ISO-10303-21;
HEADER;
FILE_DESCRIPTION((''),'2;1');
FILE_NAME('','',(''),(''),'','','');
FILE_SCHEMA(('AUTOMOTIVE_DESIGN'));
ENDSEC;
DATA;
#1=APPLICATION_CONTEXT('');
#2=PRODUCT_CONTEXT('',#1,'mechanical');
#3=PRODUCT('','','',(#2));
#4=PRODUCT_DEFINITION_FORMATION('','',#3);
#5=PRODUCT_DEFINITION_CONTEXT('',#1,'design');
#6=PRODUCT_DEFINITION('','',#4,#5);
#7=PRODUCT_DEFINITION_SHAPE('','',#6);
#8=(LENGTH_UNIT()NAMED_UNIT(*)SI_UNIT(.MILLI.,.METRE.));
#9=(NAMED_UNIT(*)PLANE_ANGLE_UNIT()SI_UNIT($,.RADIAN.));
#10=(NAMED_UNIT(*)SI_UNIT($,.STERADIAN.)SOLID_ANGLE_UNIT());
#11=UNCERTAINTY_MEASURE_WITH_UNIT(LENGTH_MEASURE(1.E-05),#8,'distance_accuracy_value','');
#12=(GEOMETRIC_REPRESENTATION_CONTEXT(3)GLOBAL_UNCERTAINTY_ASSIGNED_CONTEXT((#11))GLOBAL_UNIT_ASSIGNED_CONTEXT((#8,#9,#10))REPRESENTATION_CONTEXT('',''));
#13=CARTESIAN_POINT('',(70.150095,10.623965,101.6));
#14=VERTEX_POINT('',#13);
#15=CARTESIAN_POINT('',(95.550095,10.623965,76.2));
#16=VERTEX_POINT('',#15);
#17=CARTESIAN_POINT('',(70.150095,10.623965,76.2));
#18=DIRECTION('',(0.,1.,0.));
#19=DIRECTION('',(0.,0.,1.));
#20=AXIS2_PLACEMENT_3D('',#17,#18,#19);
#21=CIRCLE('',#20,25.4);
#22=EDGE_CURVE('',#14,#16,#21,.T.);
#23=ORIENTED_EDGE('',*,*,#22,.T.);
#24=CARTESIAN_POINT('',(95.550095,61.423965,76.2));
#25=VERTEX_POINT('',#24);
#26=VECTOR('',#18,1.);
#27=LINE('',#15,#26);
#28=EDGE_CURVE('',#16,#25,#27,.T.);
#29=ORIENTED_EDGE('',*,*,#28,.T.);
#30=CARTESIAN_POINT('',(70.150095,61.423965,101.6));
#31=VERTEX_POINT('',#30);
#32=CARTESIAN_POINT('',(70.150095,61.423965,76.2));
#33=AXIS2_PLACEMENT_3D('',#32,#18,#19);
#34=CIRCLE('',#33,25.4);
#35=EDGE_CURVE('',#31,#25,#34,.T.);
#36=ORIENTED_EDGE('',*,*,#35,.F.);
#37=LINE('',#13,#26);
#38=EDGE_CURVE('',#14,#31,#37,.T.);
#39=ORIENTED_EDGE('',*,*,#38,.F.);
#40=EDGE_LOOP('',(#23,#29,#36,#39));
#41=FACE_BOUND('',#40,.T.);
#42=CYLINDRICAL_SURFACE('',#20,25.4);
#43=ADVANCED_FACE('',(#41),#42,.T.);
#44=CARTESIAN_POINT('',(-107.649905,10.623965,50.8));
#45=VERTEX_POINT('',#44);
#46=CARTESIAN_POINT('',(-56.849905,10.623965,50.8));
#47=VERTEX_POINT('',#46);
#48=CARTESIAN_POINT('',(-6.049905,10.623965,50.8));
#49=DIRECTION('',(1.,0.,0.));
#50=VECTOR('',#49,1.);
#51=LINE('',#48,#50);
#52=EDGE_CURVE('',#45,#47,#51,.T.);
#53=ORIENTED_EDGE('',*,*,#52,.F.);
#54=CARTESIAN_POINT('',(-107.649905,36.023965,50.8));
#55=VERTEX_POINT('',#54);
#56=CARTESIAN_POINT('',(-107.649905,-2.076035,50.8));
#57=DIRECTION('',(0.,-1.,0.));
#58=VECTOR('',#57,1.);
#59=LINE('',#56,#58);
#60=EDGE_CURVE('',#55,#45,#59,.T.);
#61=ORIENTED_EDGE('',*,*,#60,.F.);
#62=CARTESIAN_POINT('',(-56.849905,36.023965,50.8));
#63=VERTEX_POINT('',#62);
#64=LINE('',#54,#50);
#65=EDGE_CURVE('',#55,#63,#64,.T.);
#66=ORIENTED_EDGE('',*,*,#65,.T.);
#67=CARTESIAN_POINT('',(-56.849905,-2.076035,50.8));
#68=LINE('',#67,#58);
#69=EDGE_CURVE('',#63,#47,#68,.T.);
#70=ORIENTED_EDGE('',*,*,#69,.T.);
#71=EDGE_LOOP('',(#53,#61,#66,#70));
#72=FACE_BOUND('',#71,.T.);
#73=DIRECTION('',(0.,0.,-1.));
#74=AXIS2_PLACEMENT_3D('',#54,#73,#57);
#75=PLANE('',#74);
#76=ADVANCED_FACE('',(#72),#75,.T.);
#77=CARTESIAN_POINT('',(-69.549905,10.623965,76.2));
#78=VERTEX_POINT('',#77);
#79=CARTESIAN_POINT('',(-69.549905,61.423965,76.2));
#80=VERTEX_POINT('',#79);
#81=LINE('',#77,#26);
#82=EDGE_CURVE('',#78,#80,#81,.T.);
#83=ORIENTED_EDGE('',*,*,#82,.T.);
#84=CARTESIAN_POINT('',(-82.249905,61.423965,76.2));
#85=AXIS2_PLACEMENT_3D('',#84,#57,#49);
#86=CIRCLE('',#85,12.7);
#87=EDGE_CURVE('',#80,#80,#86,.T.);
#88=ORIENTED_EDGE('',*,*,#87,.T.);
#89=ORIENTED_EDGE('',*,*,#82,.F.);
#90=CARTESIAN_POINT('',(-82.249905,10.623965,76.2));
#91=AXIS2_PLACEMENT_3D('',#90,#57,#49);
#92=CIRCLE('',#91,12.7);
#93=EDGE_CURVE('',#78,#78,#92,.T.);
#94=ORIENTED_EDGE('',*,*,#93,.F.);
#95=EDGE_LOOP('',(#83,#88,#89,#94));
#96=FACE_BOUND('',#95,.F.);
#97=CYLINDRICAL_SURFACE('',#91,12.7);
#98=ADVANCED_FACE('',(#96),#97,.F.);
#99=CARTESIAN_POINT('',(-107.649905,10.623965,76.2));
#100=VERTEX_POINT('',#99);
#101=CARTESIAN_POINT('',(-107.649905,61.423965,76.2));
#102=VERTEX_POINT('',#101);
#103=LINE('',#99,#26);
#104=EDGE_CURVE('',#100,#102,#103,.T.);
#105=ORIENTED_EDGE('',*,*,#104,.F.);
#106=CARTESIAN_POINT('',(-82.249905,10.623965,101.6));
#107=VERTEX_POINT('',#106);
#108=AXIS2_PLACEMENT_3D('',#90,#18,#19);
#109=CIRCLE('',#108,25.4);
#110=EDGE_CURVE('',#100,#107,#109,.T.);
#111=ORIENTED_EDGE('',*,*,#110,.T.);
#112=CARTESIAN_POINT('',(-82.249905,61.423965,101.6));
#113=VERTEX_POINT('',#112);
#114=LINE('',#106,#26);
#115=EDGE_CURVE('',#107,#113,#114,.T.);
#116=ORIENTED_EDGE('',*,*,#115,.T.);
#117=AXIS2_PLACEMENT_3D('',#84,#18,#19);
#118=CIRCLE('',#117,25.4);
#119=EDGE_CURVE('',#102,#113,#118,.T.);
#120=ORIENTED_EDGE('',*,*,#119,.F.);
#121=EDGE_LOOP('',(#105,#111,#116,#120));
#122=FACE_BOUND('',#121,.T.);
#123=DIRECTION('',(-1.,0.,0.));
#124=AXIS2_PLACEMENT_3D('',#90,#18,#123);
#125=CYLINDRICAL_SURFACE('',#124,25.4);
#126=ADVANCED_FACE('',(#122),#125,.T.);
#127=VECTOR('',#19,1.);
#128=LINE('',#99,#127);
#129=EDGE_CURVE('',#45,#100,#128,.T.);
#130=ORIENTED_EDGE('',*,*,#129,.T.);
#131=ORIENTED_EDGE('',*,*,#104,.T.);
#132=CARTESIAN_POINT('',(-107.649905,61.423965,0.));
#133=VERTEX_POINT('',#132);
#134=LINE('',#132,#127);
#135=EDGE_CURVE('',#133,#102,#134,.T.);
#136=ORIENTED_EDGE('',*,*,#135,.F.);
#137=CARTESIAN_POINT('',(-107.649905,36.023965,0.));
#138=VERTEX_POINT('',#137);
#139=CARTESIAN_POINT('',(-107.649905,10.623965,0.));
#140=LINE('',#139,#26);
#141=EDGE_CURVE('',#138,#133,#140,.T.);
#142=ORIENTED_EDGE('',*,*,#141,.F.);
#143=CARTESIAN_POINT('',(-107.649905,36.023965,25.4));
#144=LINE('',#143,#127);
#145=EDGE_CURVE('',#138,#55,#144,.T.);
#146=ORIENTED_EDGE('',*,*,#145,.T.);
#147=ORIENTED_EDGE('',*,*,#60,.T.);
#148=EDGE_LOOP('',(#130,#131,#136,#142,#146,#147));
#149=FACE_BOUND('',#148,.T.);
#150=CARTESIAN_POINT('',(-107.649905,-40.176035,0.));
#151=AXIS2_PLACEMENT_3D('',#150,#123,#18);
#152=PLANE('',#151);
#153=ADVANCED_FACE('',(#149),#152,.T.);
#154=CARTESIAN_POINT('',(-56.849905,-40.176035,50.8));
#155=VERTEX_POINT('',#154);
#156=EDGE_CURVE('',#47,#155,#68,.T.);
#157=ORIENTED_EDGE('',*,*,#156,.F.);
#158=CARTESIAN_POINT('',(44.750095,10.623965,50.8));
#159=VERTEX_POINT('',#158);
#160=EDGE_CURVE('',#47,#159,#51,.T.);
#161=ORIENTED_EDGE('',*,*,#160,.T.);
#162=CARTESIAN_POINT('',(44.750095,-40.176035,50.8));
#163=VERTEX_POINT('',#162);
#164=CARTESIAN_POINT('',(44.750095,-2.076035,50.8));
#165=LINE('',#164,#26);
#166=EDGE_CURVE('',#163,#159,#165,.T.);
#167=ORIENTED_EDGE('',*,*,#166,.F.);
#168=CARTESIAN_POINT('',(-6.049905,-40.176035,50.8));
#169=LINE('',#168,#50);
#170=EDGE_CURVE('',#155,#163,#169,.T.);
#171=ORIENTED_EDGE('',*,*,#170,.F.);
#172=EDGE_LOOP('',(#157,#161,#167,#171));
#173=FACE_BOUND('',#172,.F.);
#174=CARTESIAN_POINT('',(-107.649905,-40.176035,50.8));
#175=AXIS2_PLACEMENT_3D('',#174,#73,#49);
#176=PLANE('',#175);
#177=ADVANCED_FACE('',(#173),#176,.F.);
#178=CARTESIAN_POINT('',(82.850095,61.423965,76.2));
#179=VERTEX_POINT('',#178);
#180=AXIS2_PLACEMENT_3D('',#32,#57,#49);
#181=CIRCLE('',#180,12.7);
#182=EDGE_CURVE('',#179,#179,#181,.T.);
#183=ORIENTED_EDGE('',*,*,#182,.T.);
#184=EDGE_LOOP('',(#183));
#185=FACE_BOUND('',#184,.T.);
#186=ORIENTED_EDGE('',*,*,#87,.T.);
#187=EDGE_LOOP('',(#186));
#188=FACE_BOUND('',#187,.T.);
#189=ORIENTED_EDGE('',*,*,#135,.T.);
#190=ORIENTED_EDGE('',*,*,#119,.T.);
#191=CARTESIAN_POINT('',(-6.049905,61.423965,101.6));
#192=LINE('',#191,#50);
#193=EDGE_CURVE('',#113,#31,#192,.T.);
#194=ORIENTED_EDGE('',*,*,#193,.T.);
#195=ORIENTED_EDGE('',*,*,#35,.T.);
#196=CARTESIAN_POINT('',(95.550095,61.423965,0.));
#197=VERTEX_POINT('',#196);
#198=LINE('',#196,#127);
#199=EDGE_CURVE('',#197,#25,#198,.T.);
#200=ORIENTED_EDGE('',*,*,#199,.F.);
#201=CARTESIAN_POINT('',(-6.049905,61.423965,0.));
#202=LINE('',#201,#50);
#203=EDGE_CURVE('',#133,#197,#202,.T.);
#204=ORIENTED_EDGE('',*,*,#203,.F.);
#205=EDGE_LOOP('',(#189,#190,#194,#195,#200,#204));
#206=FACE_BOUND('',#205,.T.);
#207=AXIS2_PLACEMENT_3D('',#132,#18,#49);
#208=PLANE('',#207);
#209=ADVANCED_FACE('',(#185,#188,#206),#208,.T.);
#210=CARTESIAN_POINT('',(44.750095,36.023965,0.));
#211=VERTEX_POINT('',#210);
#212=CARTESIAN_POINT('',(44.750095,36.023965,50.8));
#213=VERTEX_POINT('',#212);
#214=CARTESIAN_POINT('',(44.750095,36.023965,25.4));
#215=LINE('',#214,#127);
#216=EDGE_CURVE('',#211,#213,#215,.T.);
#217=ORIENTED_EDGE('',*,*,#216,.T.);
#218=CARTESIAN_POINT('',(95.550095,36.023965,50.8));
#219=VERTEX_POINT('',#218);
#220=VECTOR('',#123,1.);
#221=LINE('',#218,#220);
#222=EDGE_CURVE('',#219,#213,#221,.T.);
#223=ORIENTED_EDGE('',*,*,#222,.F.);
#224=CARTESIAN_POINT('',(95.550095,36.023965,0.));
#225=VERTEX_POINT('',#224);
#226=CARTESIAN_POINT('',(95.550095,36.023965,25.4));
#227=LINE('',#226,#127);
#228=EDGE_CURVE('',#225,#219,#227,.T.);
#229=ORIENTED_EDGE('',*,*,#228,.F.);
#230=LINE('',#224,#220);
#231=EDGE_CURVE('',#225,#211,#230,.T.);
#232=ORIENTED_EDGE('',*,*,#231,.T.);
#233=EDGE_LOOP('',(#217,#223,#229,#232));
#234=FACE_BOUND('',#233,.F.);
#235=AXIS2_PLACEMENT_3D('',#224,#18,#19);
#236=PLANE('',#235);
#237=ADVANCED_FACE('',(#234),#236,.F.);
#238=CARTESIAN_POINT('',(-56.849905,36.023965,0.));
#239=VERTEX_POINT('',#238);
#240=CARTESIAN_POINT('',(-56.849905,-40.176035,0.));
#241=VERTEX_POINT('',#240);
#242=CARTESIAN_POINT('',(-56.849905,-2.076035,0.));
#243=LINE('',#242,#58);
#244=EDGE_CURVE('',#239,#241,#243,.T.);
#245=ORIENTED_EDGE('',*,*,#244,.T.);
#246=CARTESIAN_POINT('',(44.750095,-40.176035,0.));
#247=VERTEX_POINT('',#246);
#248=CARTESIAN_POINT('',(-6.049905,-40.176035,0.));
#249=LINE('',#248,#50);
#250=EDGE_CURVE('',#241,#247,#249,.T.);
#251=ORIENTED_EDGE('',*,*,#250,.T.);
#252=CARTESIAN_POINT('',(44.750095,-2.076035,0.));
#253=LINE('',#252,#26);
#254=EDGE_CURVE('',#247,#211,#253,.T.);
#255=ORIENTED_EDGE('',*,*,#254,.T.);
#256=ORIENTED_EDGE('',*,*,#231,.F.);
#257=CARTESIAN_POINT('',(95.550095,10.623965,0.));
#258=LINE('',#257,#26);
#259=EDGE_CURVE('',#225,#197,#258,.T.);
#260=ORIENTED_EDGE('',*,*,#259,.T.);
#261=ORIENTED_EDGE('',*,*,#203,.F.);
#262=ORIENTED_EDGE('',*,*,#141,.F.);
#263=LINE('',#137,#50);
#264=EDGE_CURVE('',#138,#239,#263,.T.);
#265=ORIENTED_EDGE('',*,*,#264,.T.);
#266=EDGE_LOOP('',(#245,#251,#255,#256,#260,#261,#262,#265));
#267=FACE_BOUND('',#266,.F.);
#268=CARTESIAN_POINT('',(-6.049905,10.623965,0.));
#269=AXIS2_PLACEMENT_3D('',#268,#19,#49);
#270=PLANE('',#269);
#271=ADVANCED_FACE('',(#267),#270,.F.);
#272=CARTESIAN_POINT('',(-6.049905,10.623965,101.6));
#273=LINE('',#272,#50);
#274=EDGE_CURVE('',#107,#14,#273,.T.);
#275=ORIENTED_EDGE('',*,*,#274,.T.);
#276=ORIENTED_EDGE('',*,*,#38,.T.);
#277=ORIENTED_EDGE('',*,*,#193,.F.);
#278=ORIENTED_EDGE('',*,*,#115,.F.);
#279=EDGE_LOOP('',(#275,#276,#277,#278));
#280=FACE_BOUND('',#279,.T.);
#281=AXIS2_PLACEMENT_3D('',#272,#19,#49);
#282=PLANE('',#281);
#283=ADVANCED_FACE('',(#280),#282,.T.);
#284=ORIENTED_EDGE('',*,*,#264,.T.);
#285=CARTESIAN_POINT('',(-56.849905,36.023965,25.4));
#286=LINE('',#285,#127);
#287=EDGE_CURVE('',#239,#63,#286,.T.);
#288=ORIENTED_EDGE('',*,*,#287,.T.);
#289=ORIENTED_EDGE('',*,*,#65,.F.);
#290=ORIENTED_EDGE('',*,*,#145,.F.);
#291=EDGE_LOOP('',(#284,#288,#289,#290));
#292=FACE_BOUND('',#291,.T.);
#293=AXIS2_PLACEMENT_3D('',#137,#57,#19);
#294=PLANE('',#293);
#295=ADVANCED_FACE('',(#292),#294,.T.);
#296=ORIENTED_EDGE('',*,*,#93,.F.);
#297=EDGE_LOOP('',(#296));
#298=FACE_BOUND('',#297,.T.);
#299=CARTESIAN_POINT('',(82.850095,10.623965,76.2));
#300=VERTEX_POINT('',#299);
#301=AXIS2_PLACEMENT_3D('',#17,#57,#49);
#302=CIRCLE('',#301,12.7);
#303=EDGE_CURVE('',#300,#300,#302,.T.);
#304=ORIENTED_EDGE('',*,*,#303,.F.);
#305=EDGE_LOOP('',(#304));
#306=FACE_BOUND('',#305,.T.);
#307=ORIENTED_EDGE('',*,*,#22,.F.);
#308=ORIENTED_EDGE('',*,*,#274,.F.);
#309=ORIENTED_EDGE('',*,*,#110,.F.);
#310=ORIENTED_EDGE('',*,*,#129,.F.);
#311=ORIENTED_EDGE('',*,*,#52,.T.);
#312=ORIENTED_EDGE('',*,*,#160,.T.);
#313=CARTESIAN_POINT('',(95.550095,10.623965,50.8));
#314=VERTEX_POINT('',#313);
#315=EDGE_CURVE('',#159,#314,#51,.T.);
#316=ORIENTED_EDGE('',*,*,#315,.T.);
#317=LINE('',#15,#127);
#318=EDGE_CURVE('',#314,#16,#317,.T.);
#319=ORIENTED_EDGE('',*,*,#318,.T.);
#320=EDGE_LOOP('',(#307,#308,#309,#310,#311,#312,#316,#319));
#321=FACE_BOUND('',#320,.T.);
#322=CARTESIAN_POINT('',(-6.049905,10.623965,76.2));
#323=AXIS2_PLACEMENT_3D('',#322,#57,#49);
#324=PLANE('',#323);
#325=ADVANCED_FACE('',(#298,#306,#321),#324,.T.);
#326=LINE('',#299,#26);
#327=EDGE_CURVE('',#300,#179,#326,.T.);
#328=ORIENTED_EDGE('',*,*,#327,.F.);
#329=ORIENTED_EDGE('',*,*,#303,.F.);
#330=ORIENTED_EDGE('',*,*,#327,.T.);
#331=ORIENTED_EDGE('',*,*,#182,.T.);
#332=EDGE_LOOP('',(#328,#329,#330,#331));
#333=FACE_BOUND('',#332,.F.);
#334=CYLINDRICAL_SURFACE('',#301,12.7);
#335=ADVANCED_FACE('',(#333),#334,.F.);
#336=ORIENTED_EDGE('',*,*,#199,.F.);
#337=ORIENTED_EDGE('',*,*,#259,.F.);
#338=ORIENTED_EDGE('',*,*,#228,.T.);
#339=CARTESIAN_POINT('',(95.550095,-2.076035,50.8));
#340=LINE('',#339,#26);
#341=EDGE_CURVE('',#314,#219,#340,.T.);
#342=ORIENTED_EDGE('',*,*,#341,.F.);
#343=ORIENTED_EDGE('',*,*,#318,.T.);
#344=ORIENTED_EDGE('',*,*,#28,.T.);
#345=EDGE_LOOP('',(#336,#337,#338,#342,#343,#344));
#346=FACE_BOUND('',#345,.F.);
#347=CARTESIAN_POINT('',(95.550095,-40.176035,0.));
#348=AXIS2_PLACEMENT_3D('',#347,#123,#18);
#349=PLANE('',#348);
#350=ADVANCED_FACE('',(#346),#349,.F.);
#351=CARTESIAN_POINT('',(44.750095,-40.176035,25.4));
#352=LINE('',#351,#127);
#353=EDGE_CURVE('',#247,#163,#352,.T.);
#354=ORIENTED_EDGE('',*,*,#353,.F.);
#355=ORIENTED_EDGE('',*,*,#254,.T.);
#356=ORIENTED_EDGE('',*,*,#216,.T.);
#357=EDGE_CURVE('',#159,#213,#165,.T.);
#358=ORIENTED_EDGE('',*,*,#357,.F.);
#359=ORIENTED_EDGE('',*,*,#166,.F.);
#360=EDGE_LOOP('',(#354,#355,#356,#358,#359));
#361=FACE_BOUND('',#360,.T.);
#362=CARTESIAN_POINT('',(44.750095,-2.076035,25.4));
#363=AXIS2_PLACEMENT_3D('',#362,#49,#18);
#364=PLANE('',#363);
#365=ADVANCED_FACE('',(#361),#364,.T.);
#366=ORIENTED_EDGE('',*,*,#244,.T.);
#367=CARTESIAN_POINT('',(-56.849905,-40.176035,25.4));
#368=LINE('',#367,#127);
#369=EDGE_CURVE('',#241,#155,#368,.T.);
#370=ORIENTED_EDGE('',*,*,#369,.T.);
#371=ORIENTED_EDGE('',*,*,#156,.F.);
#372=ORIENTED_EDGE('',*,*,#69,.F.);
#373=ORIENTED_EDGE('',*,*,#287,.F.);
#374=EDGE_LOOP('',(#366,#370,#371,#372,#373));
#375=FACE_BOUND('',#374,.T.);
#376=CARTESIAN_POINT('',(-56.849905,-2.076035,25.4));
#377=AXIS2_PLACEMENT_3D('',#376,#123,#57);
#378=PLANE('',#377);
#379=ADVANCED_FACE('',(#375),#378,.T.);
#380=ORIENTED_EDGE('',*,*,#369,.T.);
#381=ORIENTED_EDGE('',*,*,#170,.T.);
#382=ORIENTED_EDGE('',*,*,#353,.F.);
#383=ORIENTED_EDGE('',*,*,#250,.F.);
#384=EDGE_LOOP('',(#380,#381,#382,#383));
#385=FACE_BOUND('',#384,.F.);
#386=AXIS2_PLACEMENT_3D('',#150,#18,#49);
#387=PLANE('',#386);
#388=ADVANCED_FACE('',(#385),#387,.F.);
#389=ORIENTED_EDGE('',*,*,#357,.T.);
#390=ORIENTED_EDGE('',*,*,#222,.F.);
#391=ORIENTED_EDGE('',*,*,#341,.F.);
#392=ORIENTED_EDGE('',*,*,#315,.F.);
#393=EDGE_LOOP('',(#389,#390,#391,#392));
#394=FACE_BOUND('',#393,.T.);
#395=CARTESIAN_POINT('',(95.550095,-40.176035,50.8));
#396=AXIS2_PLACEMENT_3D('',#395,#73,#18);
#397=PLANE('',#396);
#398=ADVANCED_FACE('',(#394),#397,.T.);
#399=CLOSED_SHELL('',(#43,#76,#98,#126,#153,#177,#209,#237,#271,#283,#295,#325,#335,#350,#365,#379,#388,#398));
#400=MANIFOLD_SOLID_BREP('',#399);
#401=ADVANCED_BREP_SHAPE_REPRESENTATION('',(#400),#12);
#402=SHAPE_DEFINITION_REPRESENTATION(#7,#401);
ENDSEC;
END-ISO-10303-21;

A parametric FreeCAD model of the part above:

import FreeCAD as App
import Part
import Sketcher
Q = App.Units.Quantity


def edges_at(feature, points):
    """Names of the edges that pass closest to the given points."""
    edges = feature.Shape.Edges
    near = lambda p: min(range(len(edges)), key=lambda i: edges[i].distToShape(Part.Vertex(*p))[0])
    return sorted({f"Edge{near(p) + 1}" for p in points})


def add_polygon(sketch, points):
    """Adds a closed chain of lines whose ends are joined by coincident constraints."""
    first, n = sketch.GeometryCount, len(points)
    for a, b in zip(points, points[1:] + points[:1]):
        sketch.addGeometry(Part.LineSegment(App.Vector(*a, 0), App.Vector(*b, 0)), False)
    for i in range(n):
        sketch.addConstraint(Sketcher.Constraint("Coincident", first + i, 2, first + (i + 1) % n, 1))

doc = App.newDocument("Part")
body = doc.addObject("PartDesign::Body", "Body")

# Sketch on XY plane
sketch1 = body.newObject("Sketcher::SketchObject", "Sketch")
sketch1.AttachmentSupport = (doc.getObject("XY_Plane"), [""])
sketch1.MapMode = "FlatFace"
add_polygon(sketch1, [(-107.649905, 61.423965), (-107.649905, -40.176035), (95.550095, -40.176035), (95.550095, 61.423965)])  # lines 0-3
sketch1.addConstraint([
    Sketcher.Constraint("Vertical", 0),
    Sketcher.Constraint("Horizontal", 1),
    Sketcher.Constraint("Vertical", 2),
    Sketcher.Constraint("Horizontal", 3),
    Sketcher.Constraint("DistanceX", 1, 1, 1, 2, Q("8 in")),
    Sketcher.Constraint("DistanceY", 0, 2, 0, 1, Q("4 in")),
    Sketcher.Constraint("DistanceX", 0, 2, -1, 1, 107.649905),
    Sketcher.Constraint("DistanceY", 0, 2, -1, 1, 40.176035),
])
pad1 = body.newObject("PartDesign::Pad", "Pad")
pad1.Profile = sketch1
pad1.Length = Q("4 in")

# Sketch on YZ plane
sketch2 = body.newObject("Sketcher::SketchObject", "Sketch001")
sketch2.AttachmentSupport = (doc.getObject("YZ_Plane"), [""])
sketch2.MapMode = "FlatFace"
sketch2.AttachmentOffset = App.Placement(App.Vector(0, 0, 95.550095), App.Rotation())
add_polygon(sketch2, [(-40.176035, 50.8), (-40.176035, 0), (36.023965, 0), (36.023965, 50.8)])  # lines 0-3
sketch2.addConstraint([
    Sketcher.Constraint("Vertical", 0),
    Sketcher.Constraint("Horizontal", 1),
    Sketcher.Constraint("Vertical", 2),
    Sketcher.Constraint("Horizontal", 3),
    Sketcher.Constraint("PointOnObject", 0, 2, -1),
    Sketcher.Constraint("DistanceX", 1, 1, 1, 2, Q("3 in")),
    Sketcher.Constraint("DistanceY", 0, 2, 0, 1, Q("2 in")),
    Sketcher.Constraint("DistanceX", 0, 2, -1, 1, 40.176035),
])
pocket1 = body.newObject("PartDesign::Pocket", "Pocket")
pocket1.Profile = sketch2
pocket1.Length = Q("2 in")

# Sketch on YZ plane
sketch3 = body.newObject("Sketcher::SketchObject", "Sketch002")
sketch3.AttachmentSupport = (doc.getObject("YZ_Plane"), [""])
sketch3.MapMode = "FlatFace"
sketch3.AttachmentOffset = App.Placement(App.Vector(0, 0, -107.649905), App.Rotation())
add_polygon(sketch3, [(36.023965, 50.8), (36.023965, 0), (-40.176035, 0), (-40.176035, 50.8)])  # lines 0-3
sketch3.addConstraint([
    Sketcher.Constraint("Vertical", 0),
    Sketcher.Constraint("Horizontal", 1),
    Sketcher.Constraint("Vertical", 2),
    Sketcher.Constraint("Horizontal", 3),
    Sketcher.Constraint("PointOnObject", 0, 2, -1),
    Sketcher.Constraint("DistanceX", 1, 2, 1, 1, Q("3 in")),
    Sketcher.Constraint("DistanceY", 0, 2, 0, 1, Q("2 in")),
    Sketcher.Constraint("DistanceX", -1, 1, 0, 2, 36.023965),
])
pocket2 = body.newObject("PartDesign::Pocket", "Pocket001")
pocket2.Profile = sketch3
pocket2.Length = Q("2 in")
pocket2.Reversed = True

# Sketch on XZ plane
sketch4 = body.newObject("Sketcher::SketchObject", "Sketch003")
sketch4.AttachmentSupport = (doc.getObject("XZ_Plane"), [""])
sketch4.MapMode = "FlatFace"
sketch4.AttachmentOffset = App.Placement(App.Vector(0, 0, 40.176035), App.Rotation())
add_polygon(sketch4, [(-107.649905, 101.6), (-107.649905, 50.8), (95.550095, 50.8), (95.550095, 101.6)])  # lines 0-3
sketch4.addConstraint([
    Sketcher.Constraint("Vertical", 0),
    Sketcher.Constraint("Horizontal", 1),
    Sketcher.Constraint("Vertical", 2),
    Sketcher.Constraint("Horizontal", 3),
    Sketcher.Constraint("DistanceX", 1, 1, 1, 2, Q("8 in")),
    Sketcher.Constraint("DistanceY", 0, 2, 0, 1, Q("2 in")),
    Sketcher.Constraint("DistanceY", -1, 1, 0, 2, Q("2 in")),
    Sketcher.Constraint("DistanceX", 0, 2, -1, 1, 107.649905),
])
pocket3 = body.newObject("PartDesign::Pocket", "Pocket002")
pocket3.Profile = sketch4
pocket3.Length = Q("2 in")
doc.recompute()

fillet = body.newObject("PartDesign::Fillet", "Fillet")
fillet.Base = (pocket3, edges_at(pocket3, [(95.55, 36.024, 101.6), (-107.65, 36.024, 101.6)]))
fillet.Radius = Q("1 in")

# Sketch on XZ plane
sketch5 = body.newObject("Sketcher::SketchObject", "Sketch004")
sketch5.AttachmentSupport = (doc.getObject("XZ_Plane"), [""])
sketch5.MapMode = "FlatFace"
sketch5.AttachmentOffset = App.Placement(App.Vector(0, 0, -10.623965), App.Rotation())
sketch5.addGeometry([
    Part.Circle(App.Vector(-82.249905, 76.2, 0), App.Vector(0, 0, 1), 12.7),
    Part.Circle(App.Vector(70.150095, 76.2, 0), App.Vector(0, 0, 1), 12.7),
], False)
sketch5.addConstraint([
    Sketcher.Constraint("Equal", 0, 1),
    Sketcher.Constraint("Horizontal", 0, 3, 1, 3),
    Sketcher.Constraint("Diameter", 0, Q("1 in")),
    Sketcher.Constraint("DistanceY", -1, 1, 0, 3, Q("3 in")),
    Sketcher.Constraint("DistanceX", 0, 3, 1, 3, Q("6 in")),
    Sketcher.Constraint("DistanceX", 0, 3, -1, 1, 82.249905),
])
pocket4 = body.newObject("PartDesign::Pocket", "Pocket003")
pocket4.Profile = sketch5
pocket4.Type = "ThroughAll"

doc.recompute()
